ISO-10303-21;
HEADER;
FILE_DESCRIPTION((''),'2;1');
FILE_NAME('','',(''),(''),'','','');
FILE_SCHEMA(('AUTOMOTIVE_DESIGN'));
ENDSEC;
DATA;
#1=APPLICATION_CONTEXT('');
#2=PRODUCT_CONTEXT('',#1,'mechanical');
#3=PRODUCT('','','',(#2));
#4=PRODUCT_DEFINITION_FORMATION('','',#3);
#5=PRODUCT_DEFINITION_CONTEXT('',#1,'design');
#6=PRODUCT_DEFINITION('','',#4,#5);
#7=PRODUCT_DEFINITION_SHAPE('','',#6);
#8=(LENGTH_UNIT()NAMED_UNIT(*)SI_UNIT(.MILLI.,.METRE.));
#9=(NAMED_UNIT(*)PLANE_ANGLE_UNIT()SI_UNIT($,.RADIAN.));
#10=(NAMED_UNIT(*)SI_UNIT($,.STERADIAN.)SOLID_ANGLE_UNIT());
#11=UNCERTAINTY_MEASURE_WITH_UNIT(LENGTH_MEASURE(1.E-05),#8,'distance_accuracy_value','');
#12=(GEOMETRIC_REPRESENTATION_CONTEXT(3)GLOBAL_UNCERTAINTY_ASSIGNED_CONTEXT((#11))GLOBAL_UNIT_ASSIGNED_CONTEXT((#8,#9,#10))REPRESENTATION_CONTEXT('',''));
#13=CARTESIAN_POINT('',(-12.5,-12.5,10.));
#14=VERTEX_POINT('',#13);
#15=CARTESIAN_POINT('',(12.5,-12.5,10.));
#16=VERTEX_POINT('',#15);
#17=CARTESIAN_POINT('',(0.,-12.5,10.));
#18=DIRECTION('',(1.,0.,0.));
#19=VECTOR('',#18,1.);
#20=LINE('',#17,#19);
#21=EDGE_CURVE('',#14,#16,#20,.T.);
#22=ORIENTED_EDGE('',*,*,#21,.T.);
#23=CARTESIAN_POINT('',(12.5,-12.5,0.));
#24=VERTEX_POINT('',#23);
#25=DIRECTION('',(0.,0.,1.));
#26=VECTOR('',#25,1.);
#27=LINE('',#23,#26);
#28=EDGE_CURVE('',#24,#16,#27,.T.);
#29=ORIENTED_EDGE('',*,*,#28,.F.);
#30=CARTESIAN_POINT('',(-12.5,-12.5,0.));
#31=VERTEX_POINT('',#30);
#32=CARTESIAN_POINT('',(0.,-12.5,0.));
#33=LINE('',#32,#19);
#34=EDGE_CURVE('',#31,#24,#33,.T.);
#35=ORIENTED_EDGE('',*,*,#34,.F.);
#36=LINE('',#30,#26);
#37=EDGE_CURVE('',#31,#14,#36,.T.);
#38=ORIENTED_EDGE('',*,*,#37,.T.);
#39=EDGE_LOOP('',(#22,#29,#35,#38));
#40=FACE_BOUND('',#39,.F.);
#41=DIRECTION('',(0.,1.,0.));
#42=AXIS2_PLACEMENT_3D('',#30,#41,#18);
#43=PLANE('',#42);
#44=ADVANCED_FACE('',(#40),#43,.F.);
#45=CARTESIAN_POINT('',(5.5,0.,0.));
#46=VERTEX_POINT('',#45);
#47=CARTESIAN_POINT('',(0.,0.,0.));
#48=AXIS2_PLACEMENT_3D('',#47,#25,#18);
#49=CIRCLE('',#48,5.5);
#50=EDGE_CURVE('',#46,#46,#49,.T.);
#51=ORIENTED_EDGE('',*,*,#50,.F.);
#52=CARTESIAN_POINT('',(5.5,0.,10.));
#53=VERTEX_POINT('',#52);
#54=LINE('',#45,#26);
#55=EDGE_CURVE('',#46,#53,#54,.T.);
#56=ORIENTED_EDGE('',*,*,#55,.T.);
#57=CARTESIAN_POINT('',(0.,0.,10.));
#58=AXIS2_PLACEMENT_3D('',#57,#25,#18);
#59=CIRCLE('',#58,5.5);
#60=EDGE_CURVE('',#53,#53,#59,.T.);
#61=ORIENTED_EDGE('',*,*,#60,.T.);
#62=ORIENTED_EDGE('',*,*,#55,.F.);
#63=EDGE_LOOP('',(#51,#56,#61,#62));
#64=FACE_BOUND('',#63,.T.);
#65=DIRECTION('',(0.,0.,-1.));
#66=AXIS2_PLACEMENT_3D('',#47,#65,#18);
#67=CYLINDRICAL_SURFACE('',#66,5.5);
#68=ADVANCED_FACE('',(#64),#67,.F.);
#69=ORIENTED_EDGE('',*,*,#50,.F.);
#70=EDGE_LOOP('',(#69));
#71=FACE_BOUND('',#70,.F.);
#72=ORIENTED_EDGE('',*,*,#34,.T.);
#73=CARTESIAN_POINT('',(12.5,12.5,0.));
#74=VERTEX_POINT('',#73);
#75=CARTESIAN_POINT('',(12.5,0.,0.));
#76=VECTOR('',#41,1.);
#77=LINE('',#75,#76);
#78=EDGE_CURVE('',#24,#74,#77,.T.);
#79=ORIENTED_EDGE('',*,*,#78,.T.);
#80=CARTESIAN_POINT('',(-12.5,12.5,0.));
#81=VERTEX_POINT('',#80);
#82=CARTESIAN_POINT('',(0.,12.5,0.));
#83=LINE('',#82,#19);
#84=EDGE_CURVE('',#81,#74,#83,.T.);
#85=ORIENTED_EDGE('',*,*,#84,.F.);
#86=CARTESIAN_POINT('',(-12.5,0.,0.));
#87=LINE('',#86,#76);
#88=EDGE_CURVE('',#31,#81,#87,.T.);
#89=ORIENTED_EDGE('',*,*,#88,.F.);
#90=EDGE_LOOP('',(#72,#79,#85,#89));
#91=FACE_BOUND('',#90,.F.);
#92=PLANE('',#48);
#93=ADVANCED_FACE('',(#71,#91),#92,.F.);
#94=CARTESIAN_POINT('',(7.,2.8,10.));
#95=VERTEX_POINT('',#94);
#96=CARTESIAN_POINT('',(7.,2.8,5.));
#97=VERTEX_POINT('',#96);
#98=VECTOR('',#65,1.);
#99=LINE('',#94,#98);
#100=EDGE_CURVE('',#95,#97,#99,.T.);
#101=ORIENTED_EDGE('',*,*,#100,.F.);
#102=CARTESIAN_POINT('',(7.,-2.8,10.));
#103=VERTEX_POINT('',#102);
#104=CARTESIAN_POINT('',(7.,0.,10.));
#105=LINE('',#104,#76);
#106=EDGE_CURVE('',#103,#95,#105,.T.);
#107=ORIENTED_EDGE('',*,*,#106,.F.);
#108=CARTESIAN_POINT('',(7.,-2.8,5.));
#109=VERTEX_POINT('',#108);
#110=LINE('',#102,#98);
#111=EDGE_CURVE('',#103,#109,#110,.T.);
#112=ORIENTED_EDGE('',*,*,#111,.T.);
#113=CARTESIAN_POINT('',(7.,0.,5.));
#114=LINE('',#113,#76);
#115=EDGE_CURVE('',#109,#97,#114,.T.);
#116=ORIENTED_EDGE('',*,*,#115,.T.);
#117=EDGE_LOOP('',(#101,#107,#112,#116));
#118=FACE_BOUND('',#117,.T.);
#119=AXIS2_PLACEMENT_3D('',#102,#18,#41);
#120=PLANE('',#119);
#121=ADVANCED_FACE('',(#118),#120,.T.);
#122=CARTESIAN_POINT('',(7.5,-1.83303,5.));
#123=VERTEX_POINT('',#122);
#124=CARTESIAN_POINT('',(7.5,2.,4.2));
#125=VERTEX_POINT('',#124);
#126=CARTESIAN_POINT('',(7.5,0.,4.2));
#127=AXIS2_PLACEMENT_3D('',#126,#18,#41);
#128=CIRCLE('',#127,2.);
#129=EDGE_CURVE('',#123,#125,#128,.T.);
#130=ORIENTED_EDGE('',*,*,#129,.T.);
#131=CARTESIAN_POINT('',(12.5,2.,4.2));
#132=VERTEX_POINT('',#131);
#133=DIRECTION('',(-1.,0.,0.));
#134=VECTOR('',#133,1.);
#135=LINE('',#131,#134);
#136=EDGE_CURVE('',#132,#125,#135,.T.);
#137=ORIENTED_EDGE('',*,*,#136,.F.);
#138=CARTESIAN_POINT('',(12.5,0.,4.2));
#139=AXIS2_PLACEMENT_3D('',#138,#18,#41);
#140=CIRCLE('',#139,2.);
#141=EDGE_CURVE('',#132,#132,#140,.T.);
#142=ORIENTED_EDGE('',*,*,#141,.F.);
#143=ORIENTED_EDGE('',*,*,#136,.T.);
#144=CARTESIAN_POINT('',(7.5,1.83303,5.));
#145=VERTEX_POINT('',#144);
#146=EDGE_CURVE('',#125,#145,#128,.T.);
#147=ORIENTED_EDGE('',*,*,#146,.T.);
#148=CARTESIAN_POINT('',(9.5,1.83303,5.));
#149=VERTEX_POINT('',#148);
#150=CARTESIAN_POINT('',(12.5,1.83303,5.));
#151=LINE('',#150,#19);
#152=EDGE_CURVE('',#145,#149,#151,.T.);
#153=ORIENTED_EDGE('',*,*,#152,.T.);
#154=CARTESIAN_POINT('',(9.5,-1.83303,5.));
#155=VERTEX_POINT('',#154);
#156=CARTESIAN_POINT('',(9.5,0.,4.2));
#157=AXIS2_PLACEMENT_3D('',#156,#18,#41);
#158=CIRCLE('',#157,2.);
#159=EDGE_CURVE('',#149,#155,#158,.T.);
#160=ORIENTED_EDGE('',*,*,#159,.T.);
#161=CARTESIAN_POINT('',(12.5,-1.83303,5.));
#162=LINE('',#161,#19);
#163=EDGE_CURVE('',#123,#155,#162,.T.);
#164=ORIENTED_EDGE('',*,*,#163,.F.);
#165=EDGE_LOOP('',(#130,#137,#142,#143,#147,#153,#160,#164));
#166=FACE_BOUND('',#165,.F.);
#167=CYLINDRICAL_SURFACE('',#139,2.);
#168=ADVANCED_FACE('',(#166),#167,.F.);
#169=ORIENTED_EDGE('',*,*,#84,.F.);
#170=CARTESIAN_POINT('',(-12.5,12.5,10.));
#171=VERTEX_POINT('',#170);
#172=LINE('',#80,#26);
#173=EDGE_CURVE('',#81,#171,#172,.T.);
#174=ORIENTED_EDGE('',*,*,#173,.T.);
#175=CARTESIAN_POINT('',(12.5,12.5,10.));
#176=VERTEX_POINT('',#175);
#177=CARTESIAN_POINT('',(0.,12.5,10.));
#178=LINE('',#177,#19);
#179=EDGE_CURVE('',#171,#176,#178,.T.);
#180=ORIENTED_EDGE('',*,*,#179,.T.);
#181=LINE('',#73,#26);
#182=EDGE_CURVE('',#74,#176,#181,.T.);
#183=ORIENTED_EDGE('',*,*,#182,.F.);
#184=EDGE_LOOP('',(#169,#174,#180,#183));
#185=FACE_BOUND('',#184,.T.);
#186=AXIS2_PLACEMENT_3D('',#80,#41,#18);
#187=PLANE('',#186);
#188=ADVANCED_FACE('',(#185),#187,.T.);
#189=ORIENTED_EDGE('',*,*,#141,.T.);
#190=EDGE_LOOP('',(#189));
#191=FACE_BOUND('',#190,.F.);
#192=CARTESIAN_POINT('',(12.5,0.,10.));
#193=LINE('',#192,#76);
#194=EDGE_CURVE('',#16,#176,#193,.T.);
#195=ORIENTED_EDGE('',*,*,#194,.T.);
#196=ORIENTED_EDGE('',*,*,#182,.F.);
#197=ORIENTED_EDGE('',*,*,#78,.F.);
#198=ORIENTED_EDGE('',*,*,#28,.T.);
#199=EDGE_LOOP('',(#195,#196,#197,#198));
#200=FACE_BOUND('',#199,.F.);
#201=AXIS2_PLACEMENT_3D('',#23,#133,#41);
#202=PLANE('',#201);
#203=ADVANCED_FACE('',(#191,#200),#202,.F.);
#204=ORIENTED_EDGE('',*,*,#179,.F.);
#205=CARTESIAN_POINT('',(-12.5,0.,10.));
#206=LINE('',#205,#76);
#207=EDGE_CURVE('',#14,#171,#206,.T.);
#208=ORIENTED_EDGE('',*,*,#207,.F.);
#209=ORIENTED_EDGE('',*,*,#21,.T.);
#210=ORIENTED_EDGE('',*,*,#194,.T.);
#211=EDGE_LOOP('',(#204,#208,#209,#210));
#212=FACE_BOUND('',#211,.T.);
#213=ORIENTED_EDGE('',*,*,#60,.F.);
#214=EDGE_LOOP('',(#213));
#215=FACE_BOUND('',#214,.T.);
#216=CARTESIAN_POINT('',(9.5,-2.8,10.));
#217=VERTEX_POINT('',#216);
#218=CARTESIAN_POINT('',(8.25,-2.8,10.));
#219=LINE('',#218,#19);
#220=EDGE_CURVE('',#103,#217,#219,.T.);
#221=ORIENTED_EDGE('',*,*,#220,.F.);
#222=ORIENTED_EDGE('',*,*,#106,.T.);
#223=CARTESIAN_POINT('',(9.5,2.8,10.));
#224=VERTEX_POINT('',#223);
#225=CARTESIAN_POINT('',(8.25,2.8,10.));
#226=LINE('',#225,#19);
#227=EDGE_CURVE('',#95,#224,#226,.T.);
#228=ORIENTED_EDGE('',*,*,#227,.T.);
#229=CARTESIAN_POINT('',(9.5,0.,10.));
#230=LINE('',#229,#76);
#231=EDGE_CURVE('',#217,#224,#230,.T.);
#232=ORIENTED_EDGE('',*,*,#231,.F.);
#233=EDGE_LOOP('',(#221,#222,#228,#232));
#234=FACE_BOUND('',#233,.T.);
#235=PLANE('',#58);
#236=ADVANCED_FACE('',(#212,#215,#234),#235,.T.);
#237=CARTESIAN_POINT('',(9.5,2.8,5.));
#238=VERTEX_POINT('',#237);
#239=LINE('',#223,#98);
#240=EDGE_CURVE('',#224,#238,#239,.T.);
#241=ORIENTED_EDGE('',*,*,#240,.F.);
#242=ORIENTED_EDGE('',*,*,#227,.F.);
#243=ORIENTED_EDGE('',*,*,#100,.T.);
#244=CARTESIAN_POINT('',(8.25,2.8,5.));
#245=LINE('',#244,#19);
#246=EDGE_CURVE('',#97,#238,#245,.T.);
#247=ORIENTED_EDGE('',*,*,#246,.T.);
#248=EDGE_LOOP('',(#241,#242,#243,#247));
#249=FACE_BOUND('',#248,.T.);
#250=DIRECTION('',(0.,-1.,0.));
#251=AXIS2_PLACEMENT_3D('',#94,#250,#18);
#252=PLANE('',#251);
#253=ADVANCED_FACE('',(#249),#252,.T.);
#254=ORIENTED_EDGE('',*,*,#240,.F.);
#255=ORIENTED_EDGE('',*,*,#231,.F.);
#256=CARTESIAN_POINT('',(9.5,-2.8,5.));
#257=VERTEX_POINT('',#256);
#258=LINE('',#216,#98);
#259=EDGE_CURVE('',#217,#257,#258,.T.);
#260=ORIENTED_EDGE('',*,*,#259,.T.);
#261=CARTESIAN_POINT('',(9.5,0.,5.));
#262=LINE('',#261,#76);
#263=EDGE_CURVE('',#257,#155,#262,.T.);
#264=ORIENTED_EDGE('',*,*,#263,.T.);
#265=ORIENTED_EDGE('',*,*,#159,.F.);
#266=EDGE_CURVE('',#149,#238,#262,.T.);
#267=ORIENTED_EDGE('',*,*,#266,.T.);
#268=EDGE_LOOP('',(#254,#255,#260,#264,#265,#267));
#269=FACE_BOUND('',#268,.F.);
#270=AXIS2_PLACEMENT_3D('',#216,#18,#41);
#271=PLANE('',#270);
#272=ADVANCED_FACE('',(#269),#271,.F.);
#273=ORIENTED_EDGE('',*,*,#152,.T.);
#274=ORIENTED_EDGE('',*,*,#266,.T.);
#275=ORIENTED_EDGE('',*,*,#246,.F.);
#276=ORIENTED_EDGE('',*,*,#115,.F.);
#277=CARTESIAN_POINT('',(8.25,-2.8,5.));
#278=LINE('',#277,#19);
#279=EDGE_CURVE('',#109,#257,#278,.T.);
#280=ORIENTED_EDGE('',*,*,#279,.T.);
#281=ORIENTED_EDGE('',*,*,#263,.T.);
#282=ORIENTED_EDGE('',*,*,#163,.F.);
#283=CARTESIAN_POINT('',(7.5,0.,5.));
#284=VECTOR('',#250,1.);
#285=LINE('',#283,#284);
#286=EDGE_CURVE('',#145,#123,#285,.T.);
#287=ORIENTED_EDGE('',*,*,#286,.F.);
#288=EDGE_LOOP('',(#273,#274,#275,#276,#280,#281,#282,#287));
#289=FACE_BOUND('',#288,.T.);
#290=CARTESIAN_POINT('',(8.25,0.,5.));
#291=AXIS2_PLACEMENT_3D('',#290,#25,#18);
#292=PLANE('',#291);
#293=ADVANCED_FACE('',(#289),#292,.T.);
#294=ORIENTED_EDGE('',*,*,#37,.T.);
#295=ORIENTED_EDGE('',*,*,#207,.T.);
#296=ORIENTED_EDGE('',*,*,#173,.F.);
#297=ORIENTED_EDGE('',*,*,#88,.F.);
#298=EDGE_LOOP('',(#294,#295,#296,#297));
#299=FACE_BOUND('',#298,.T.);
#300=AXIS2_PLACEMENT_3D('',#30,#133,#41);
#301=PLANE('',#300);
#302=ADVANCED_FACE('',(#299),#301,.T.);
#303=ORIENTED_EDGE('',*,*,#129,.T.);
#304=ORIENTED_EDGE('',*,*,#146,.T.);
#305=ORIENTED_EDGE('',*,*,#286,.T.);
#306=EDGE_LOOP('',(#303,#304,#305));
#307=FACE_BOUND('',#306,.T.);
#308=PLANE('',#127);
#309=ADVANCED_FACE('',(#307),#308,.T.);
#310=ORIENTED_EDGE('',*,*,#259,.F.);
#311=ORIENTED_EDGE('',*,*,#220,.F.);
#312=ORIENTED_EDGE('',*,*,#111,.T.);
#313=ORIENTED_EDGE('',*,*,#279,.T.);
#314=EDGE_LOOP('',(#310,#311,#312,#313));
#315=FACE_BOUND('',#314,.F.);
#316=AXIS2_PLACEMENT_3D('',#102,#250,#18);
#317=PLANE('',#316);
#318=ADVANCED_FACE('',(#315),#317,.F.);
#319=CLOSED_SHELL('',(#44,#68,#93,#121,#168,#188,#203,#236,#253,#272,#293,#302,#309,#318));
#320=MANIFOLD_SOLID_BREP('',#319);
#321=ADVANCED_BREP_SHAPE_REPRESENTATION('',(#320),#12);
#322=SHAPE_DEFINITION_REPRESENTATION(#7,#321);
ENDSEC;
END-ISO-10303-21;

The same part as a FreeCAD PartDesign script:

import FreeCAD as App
import Part
import Sketcher

V = App.Vector

doc = App.newDocument("Part")
body = doc.addObject("PartDesign::Body", "Body")

sketch1 = body.newObject("Sketcher::SketchObject", "Sketch")
sketch1.AttachmentSupport = (doc.getObject("XY_Plane"), [""])
sketch1.MapMode = "FlatFace"
sketch1.addGeometry([
    Part.LineSegment(V(-12, 12, 0), V(-12, -12, 0)),
    Part.LineSegment(V(-12, -12, 0), V(12, -12, 0)),
    Part.LineSegment(V(12, -12, 0), V(12, 12, 0)),
    Part.LineSegment(V(12, 12, 0), V(-12, 12, 0)),
    Part.Circle(V(0, 0, 0), V(0, 0, 1), 6),
], False)
sketch1.addConstraint([
    Sketcher.Constraint("Coincident", 0, 2, 1, 1),
    Sketcher.Constraint("Coincident", 1, 2, 2, 1),
    Sketcher.Constraint("Coincident", 2, 2, 3, 1),
    Sketcher.Constraint("Coincident", 3, 2, 0, 1),
    Sketcher.Constraint("Vertical", 0),
    Sketcher.Constraint("Horizontal", 1),
    Sketcher.Constraint("Vertical", 2),
    Sketcher.Constraint("Horizontal", 3),
    Sketcher.Constraint("Coincident", 4, 3, -1, 1),
    Sketcher.Constraint("Symmetric", 0, 2, 2, 2, -1, 1),
    Sketcher.Constraint("Equal", 3, 0),
    Sketcher.Constraint("Diameter", 4, 11.0),
    Sketcher.Constraint("DistanceX", 1, 1, 1, 2, 25.0),
])
pad1 = body.newObject("PartDesign::Pad", "Pad")
pad1.Profile = sketch1
pad1.Length = 10

sketch2 = body.newObject("Sketcher::SketchObject", "Sketch001")
sketch2.AttachmentSupport = (doc.getObject("YZ_Plane"), [""])
sketch2.MapMode = "FlatFace"
sketch2.AttachmentOffset = App.Placement(V(0, 0, 12.5), App.Rotation())
sketch2.addGeometry(Part.Circle(V(0, 4.2, 0), V(0, 0, 1), 2), False)
sketch2.addConstraint([
    Sketcher.Constraint("PointOnObject", 0, 3, -2),
    Sketcher.Constraint("Diameter", 0, 4.0),
    Sketcher.Constraint("DistanceY", -1, 1, 0, 3, 4.2),
])
pocket1 = body.newObject("PartDesign::Pocket", "Pocket")
pocket1.Profile = sketch2
pocket1.Length = 5

sketch3 = body.newObject("Sketcher::SketchObject", "Sketch002")
sketch3.AttachmentSupport = (doc.getObject("XY_Plane"), [""])
sketch3.MapMode = "FlatFace"
sketch3.AttachmentOffset = App.Placement(V(0, 0, 10), App.Rotation())
sketch3.addGeometry([
    Part.LineSegment(V(7, 2.8, 0), V(7, -2.8, 0)),
    Part.LineSegment(V(7, -2.8, 0), V(9.5, -2.8, 0)),
    Part.LineSegment(V(9.5, -2.8, 0), V(9.5, 2.8, 0)),
    Part.LineSegment(V(9.5, 2.8, 0), V(7, 2.8, 0)),
], False)
sketch3.addConstraint([
    Sketcher.Constraint("Coincident", 0, 2, 1, 1),
    Sketcher.Constraint("Coincident", 1, 2, 2, 1),
    Sketcher.Constraint("Coincident", 2, 2, 3, 1),
    Sketcher.Constraint("Coincident", 3, 2, 0, 1),
    Sketcher.Constraint("Vertical", 0),
    Sketcher.Constraint("Horizontal", 1),
    Sketcher.Constraint("Vertical", 2),
    Sketcher.Constraint("Horizontal", 3),
    Sketcher.Constraint("DistanceX", 1, 1, 1, 2, 2.5),
    Sketcher.Constraint("DistanceY", 0, 2, 0, 1, 5.6),
    Sketcher.Constraint("DistanceX", -1, 1, 0, 2, 7.0),
    Sketcher.Constraint("DistanceY", 0, 2, -1, 1, 2.8),
])
pocket2 = body.newObject("PartDesign::Pocket", "Pocket001")
pocket2.Profile = sketch3
pocket2.Length = 5

doc.recompute()
